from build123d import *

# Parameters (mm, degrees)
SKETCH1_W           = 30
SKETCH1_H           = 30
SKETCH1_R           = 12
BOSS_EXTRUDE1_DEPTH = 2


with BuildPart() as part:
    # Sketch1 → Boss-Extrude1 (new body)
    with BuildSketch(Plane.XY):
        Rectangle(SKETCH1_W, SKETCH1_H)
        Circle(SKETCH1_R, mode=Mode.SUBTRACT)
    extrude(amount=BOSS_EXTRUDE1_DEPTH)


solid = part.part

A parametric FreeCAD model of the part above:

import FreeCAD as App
import Part
import Sketcher
Q = App.Units.Quantity

doc = App.newDocument("Part")
body = doc.addObject("PartDesign::Body", "Body")

# Sketch on XY plane
sketch1 = doc.addObject("Sketcher::SketchObject", "Sketch")
body.addObject(sketch1)
sketch1.AttachmentSupport = (doc.XY_Plane, [""])
sketch1.MapMode = "FlatFace"
sketch1.addGeometry(Part.LineSegment(App.Vector(-15, 15, 0), App.Vector(-15, -15, 0)), False)
sketch1.addGeometry(Part.LineSegment(App.Vector(-15, -15, 0), App.Vector(15, -15, 0)), False)
sketch1.addGeometry(Part.LineSegment(App.Vector(15, -15, 0), App.Vector(15, 15, 0)), False)
sketch1.addGeometry(Part.LineSegment(App.Vector(15, 15, 0), App.Vector(-15, 15, 0)), False)
sketch1.addGeometry(Part.Circle(App.Vector(0, 0, 0), App.Vector(0, 0, 1), 12), False)
sketch1.addConstraint(Sketcher.Constraint("Coincident", 0, 2, 1, 1))
sketch1.addConstraint(Sketcher.Constraint("Coincident", 1, 2, 2, 1))
sketch1.addConstraint(Sketcher.Constraint("Coincident", 2, 2, 3, 1))
sketch1.addConstraint(Sketcher.Constraint("Coincident", 3, 2, 0, 1))
sketch1.addConstraint(Sketcher.Constraint("Vertical", 0))
sketch1.addConstraint(Sketcher.Constraint("Horizontal", 1))
sketch1.addConstraint(Sketcher.Constraint("Vertical", 2))
sketch1.addConstraint(Sketcher.Constraint("Horizontal", 3))
sketch1.addConstraint(Sketcher.Constraint("Coincident", 4, 3, -1, 1))
sketch1.addConstraint(Sketcher.Constraint("Symmetric", 0, 2, 2, 2, -1, 1))
sketch1.addConstraint(Sketcher.Constraint("Equal", 3, 0))
sketch1.addConstraint(Sketcher.Constraint("Diameter", 4, Q("24 mm")))
sketch1.addConstraint(Sketcher.Constraint("DistanceX", 1, 1, 1, 2, Q("30 mm")))
pad1 = doc.addObject("PartDesign::Pad", "Pad")
body.addObject(pad1)
pad1.Profile = sketch1
pad1.Length = 2

doc.recompute()
